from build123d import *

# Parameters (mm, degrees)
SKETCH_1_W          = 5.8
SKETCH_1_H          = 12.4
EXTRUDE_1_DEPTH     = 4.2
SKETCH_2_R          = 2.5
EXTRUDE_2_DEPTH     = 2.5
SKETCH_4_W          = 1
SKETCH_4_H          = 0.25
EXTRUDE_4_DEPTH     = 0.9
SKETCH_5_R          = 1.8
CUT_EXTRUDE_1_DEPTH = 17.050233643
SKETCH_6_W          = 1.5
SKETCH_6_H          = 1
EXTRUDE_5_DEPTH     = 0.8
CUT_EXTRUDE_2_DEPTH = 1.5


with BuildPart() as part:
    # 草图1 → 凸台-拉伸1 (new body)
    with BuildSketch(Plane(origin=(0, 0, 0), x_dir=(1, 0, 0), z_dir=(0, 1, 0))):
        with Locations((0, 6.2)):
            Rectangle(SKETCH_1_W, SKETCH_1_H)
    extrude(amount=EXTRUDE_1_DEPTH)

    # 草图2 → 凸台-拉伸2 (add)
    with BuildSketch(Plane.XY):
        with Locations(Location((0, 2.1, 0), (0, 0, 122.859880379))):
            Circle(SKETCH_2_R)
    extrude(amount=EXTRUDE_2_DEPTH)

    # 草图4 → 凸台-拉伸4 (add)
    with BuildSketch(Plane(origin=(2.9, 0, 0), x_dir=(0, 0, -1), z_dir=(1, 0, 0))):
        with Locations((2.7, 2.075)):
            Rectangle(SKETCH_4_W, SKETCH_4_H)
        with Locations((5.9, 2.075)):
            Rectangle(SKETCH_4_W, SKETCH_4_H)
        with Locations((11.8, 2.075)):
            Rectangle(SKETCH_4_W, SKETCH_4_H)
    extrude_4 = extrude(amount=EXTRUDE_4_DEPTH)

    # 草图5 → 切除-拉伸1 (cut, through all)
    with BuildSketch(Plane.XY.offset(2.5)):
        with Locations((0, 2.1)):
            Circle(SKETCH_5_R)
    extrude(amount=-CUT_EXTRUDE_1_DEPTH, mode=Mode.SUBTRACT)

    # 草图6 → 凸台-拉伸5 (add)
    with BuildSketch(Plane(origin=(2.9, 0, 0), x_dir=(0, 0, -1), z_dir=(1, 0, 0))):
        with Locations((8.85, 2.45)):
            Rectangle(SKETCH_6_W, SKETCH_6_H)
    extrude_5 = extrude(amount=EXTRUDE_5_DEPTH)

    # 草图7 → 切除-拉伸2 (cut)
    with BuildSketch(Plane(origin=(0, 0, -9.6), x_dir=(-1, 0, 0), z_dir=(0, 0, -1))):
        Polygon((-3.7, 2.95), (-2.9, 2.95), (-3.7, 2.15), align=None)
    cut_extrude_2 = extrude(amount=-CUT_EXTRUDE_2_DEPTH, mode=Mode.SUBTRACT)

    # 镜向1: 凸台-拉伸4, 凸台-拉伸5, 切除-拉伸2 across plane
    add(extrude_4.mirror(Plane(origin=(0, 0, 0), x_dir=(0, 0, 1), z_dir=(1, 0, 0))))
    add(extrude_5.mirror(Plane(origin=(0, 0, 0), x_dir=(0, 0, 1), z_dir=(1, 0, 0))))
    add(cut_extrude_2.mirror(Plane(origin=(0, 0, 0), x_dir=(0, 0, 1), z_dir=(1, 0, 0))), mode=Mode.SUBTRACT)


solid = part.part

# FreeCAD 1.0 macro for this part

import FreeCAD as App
import Part
import Sketcher
from FreeCAD import Vector


def add_polygon(sketch, points):
    """Adds a closed chain of lines whose ends are joined by coincident constraints."""
    first, n = sketch.GeometryCount, len(points)
    for a, b in zip(points, points[1:] + points[:1]):
        sketch.addGeometry(Part.LineSegment(App.Vector(*a, 0), App.Vector(*b, 0)), False)
    for i in range(n):
        sketch.addConstraint(Sketcher.Constraint("Coincident", first + i, 2, first + (i + 1) % n, 1))

doc = App.newDocument("Part")
body = doc.addObject("PartDesign::Body", "Body")

sketch1 = doc.addObject("Sketcher::SketchObject", "Sketch")
body.addObject(sketch1)
sketch1.AttachmentSupport = (doc.XZ_Plane, [""])
sketch1.MapMode = "FlatFace"
add_polygon(sketch1, [(-3, -12), (-3, 0), (3, 0), (3, -12)])
sketch1.addConstraint([
    Sketcher.Constraint("Vertical", 0),
    Sketcher.Constraint("Horizontal", 1),
    Sketcher.Constraint("Vertical", 2),
    Sketcher.Constraint("Horizontal", 3),
    Sketcher.Constraint("Symmetric", 0, 2, 1, 2, -1, 1),
    Sketcher.Constraint("DistanceX", 1, 1, 1, 2, 5.8),
    Sketcher.Constraint("DistanceY", 0, 1, 0, 2, 12.4),
])
pad1 = doc.addObject("PartDesign::Pad", "Pad")
body.addObject(pad1)
pad1.Profile = sketch1
pad1.Length = 4.2
pad1.Reversed = True

sketch2 = doc.addObject("Sketcher::SketchObject", "Sketch001")
body.addObject(sketch2)
sketch2.AttachmentSupport = (doc.XY_Plane, [""])
sketch2.MapMode = "FlatFace"
sketch2.addGeometry(Part.Circle(Vector(0, 2.1, 0), Vector(0, 0, 1), 2.5), False)
sketch2.addConstraint([
    Sketcher.Constraint("PointOnObject", 0, 3, -2),
    Sketcher.Constraint("Diameter", 0, 5.0),
    Sketcher.Constraint("DistanceY", -1, 1, 0, 3, 2.1),
])
pad2 = doc.addObject("PartDesign::Pad", "Pad001")
body.addObject(pad2)
pad2.Profile = sketch2
pad2.Length = 2.5

sketch3 = doc.addObject("Sketcher::SketchObject", "Sketch002")
body.addObject(sketch3)
sketch3.AttachmentSupport = (doc.YZ_Plane, [""])
sketch3.MapMode = "FlatFace"
sketch3.AttachmentOffset = App.Placement(Vector(0, 0, 2.9), App.Rotation())
add_polygon(sketch3, [(2.2, -2.2), (1.95, -2.2), (1.95, -3.2), (2.2, -3.2)])
add_polygon(sketch3, [(2.2, -5.4), (1.95, -5.4), (1.95, -6.4), (2.2, -6.4)])
add_polygon(sketch3, [(2.2, -11.3), (1.95, -11.3), (1.95, -12.3), (2.2, -12.3)])
sketch3.addConstraint([
    Sketcher.Constraint("Horizontal", 0),
    Sketcher.Constraint("Vertical", 1),
    Sketcher.Constraint("Horizontal", 2),
    Sketcher.Constraint("Vertical", 3),
    Sketcher.Constraint("Horizontal", 4),
    Sketcher.Constraint("Vertical", 5),
    Sketcher.Constraint("Horizontal", 6),
    Sketcher.Constraint("Vertical", 7),
    Sketcher.Constraint("Horizontal", 8),
    Sketcher.Constraint("Vertical", 9),
    Sketcher.Constraint("Horizontal", 10),
    Sketcher.Constraint("Vertical", 11),
    Sketcher.Constraint("Vertical", 1, 2, 4, 2),
    Sketcher.Constraint("Vertical", 3, 2, 6, 2),
    Sketcher.Constraint("Vertical", 5, 2, 8, 2),
    Sketcher.Constraint("Vertical", 7, 2, 10, 2),
    Sketcher.Constraint("Equal", 3, 5),
    Sketcher.Constraint("Equal", 7, 9),
    Sketcher.Constraint("DistanceY", 1, 2, 1, 1, 1.0),
    Sketcher.Constraint("DistanceX", 0, 2, 0, 1, 0.25),
    Sketcher.Constraint("DistanceY", 0, 2, -1, 1, 2.2),
    Sketcher.Constraint("DistanceX", -1, 1, 2, 2, 2.2),
    Sketcher.Constraint("DistanceY", 4, 2, -1, 1, 5.4),
    Sketcher.Constraint("DistanceY", 8, 2, -1, 1, 11.3),
])
pad3 = doc.addObject("PartDesign::Pad", "Pad002")
body.addObject(pad3)
pad3.Profile = sketch3
pad3.Length = 0.9

sketch4 = doc.addObject("Sketcher::SketchObject", "Sketch003")
body.addObject(sketch4)
sketch4.AttachmentSupport = (doc.XY_Plane, [""])
sketch4.MapMode = "FlatFace"
sketch4.AttachmentOffset = App.Placement(Vector(0, 0, 2.5), App.Rotation())
sketch4.addGeometry(Part.Circle(Vector(0, 2.1, 0), Vector(0, 0, 1), 1.8), False)
sketch4.addConstraint([
    Sketcher.Constraint("PointOnObject", 0, 3, -2),
    Sketcher.Constraint("Diameter", 0, 3.6),
    Sketcher.Constraint("DistanceY", -1, 1, 0, 3, 2.1),
])
pocket1 = doc.addObject("PartDesign::Pocket", "Pocket")
body.addObject(pocket1)
pocket1.Profile = sketch4
pocket1.Type = "ThroughAll"

sketch5 = doc.addObject("Sketcher::SketchObject", "Sketch004")
body.addObject(sketch5)
sketch5.AttachmentSupport = (doc.YZ_Plane, [""])
sketch5.MapMode = "FlatFace"
sketch5.AttachmentOffset = App.Placement(Vector(0, 0, 2.9), App.Rotation())
add_polygon(sketch5, [(3, -8.1), (1.9, -8.1), (1.9, -9.6), (3, -9.6)])
sketch5.addConstraint([
    Sketcher.Constraint("Horizontal", 0),
    Sketcher.Constraint("Vertical", 1),
    Sketcher.Constraint("Horizontal", 2),
    Sketcher.Constraint("Vertical", 3),
    Sketcher.Constraint("DistanceX", 0, 2, 0, 1, 1.0),
    Sketcher.Constraint("DistanceY", 1, 2, 1, 1, 1.5),
    Sketcher.Constraint("DistanceY", 0, 2, -1, 1, 8.1),
    Sketcher.Constraint("DistanceX", -1, 1, 0, 2, 1.95),
])
pad4 = doc.addObject("PartDesign::Pad", "Pad003")
body.addObject(pad4)
pad4.Profile = sketch5
pad4.Length = 0.8

sketch6 = doc.addObject("Sketcher::SketchObject", "Sketch005")
body.addObject(sketch6)
sketch6.AttachmentSupport = (doc.XY_Plane, [""])
sketch6.MapMode = "FlatFace"
sketch6.AttachmentOffset = App.Placement(Vector(0, 0, -9.6), App.Rotation())
add_polygon(sketch6, [(2.9, 3), (3.7, 3), (3.7, 2.1)])
sketch6.addConstraint([
    Sketcher.Constraint("Horizontal", 0),
    Sketcher.Constraint("Vertical", 1),
    Sketcher.Constraint("Equal", 0, 1),
    Sketcher.Constraint("DistanceX", 0, 1, 0, 2, 0.8),
    Sketcher.Constraint("DistanceX", -1, 1, 0, 2, 3.7),
    Sketcher.Constraint("DistanceY", -1, 1, 0, 2, 2.95),
])
pocket2 = doc.addObject("PartDesign::Pocket", "Pocket001")
body.addObject(pocket2)
pocket2.Profile = sketch6
pocket2.Length = 1.5
pocket2.Reversed = True
doc.recompute()

mirrored = doc.addObject("PartDesign::Mirrored", "Mirrored")
body.addObject(mirrored)
mirrored.Originals = [pad3, pad4, pocket2]
mirrored.MirrorPlane = (doc.YZ_Plane, [""])
body.Tip = mirrored

doc.recompute()
